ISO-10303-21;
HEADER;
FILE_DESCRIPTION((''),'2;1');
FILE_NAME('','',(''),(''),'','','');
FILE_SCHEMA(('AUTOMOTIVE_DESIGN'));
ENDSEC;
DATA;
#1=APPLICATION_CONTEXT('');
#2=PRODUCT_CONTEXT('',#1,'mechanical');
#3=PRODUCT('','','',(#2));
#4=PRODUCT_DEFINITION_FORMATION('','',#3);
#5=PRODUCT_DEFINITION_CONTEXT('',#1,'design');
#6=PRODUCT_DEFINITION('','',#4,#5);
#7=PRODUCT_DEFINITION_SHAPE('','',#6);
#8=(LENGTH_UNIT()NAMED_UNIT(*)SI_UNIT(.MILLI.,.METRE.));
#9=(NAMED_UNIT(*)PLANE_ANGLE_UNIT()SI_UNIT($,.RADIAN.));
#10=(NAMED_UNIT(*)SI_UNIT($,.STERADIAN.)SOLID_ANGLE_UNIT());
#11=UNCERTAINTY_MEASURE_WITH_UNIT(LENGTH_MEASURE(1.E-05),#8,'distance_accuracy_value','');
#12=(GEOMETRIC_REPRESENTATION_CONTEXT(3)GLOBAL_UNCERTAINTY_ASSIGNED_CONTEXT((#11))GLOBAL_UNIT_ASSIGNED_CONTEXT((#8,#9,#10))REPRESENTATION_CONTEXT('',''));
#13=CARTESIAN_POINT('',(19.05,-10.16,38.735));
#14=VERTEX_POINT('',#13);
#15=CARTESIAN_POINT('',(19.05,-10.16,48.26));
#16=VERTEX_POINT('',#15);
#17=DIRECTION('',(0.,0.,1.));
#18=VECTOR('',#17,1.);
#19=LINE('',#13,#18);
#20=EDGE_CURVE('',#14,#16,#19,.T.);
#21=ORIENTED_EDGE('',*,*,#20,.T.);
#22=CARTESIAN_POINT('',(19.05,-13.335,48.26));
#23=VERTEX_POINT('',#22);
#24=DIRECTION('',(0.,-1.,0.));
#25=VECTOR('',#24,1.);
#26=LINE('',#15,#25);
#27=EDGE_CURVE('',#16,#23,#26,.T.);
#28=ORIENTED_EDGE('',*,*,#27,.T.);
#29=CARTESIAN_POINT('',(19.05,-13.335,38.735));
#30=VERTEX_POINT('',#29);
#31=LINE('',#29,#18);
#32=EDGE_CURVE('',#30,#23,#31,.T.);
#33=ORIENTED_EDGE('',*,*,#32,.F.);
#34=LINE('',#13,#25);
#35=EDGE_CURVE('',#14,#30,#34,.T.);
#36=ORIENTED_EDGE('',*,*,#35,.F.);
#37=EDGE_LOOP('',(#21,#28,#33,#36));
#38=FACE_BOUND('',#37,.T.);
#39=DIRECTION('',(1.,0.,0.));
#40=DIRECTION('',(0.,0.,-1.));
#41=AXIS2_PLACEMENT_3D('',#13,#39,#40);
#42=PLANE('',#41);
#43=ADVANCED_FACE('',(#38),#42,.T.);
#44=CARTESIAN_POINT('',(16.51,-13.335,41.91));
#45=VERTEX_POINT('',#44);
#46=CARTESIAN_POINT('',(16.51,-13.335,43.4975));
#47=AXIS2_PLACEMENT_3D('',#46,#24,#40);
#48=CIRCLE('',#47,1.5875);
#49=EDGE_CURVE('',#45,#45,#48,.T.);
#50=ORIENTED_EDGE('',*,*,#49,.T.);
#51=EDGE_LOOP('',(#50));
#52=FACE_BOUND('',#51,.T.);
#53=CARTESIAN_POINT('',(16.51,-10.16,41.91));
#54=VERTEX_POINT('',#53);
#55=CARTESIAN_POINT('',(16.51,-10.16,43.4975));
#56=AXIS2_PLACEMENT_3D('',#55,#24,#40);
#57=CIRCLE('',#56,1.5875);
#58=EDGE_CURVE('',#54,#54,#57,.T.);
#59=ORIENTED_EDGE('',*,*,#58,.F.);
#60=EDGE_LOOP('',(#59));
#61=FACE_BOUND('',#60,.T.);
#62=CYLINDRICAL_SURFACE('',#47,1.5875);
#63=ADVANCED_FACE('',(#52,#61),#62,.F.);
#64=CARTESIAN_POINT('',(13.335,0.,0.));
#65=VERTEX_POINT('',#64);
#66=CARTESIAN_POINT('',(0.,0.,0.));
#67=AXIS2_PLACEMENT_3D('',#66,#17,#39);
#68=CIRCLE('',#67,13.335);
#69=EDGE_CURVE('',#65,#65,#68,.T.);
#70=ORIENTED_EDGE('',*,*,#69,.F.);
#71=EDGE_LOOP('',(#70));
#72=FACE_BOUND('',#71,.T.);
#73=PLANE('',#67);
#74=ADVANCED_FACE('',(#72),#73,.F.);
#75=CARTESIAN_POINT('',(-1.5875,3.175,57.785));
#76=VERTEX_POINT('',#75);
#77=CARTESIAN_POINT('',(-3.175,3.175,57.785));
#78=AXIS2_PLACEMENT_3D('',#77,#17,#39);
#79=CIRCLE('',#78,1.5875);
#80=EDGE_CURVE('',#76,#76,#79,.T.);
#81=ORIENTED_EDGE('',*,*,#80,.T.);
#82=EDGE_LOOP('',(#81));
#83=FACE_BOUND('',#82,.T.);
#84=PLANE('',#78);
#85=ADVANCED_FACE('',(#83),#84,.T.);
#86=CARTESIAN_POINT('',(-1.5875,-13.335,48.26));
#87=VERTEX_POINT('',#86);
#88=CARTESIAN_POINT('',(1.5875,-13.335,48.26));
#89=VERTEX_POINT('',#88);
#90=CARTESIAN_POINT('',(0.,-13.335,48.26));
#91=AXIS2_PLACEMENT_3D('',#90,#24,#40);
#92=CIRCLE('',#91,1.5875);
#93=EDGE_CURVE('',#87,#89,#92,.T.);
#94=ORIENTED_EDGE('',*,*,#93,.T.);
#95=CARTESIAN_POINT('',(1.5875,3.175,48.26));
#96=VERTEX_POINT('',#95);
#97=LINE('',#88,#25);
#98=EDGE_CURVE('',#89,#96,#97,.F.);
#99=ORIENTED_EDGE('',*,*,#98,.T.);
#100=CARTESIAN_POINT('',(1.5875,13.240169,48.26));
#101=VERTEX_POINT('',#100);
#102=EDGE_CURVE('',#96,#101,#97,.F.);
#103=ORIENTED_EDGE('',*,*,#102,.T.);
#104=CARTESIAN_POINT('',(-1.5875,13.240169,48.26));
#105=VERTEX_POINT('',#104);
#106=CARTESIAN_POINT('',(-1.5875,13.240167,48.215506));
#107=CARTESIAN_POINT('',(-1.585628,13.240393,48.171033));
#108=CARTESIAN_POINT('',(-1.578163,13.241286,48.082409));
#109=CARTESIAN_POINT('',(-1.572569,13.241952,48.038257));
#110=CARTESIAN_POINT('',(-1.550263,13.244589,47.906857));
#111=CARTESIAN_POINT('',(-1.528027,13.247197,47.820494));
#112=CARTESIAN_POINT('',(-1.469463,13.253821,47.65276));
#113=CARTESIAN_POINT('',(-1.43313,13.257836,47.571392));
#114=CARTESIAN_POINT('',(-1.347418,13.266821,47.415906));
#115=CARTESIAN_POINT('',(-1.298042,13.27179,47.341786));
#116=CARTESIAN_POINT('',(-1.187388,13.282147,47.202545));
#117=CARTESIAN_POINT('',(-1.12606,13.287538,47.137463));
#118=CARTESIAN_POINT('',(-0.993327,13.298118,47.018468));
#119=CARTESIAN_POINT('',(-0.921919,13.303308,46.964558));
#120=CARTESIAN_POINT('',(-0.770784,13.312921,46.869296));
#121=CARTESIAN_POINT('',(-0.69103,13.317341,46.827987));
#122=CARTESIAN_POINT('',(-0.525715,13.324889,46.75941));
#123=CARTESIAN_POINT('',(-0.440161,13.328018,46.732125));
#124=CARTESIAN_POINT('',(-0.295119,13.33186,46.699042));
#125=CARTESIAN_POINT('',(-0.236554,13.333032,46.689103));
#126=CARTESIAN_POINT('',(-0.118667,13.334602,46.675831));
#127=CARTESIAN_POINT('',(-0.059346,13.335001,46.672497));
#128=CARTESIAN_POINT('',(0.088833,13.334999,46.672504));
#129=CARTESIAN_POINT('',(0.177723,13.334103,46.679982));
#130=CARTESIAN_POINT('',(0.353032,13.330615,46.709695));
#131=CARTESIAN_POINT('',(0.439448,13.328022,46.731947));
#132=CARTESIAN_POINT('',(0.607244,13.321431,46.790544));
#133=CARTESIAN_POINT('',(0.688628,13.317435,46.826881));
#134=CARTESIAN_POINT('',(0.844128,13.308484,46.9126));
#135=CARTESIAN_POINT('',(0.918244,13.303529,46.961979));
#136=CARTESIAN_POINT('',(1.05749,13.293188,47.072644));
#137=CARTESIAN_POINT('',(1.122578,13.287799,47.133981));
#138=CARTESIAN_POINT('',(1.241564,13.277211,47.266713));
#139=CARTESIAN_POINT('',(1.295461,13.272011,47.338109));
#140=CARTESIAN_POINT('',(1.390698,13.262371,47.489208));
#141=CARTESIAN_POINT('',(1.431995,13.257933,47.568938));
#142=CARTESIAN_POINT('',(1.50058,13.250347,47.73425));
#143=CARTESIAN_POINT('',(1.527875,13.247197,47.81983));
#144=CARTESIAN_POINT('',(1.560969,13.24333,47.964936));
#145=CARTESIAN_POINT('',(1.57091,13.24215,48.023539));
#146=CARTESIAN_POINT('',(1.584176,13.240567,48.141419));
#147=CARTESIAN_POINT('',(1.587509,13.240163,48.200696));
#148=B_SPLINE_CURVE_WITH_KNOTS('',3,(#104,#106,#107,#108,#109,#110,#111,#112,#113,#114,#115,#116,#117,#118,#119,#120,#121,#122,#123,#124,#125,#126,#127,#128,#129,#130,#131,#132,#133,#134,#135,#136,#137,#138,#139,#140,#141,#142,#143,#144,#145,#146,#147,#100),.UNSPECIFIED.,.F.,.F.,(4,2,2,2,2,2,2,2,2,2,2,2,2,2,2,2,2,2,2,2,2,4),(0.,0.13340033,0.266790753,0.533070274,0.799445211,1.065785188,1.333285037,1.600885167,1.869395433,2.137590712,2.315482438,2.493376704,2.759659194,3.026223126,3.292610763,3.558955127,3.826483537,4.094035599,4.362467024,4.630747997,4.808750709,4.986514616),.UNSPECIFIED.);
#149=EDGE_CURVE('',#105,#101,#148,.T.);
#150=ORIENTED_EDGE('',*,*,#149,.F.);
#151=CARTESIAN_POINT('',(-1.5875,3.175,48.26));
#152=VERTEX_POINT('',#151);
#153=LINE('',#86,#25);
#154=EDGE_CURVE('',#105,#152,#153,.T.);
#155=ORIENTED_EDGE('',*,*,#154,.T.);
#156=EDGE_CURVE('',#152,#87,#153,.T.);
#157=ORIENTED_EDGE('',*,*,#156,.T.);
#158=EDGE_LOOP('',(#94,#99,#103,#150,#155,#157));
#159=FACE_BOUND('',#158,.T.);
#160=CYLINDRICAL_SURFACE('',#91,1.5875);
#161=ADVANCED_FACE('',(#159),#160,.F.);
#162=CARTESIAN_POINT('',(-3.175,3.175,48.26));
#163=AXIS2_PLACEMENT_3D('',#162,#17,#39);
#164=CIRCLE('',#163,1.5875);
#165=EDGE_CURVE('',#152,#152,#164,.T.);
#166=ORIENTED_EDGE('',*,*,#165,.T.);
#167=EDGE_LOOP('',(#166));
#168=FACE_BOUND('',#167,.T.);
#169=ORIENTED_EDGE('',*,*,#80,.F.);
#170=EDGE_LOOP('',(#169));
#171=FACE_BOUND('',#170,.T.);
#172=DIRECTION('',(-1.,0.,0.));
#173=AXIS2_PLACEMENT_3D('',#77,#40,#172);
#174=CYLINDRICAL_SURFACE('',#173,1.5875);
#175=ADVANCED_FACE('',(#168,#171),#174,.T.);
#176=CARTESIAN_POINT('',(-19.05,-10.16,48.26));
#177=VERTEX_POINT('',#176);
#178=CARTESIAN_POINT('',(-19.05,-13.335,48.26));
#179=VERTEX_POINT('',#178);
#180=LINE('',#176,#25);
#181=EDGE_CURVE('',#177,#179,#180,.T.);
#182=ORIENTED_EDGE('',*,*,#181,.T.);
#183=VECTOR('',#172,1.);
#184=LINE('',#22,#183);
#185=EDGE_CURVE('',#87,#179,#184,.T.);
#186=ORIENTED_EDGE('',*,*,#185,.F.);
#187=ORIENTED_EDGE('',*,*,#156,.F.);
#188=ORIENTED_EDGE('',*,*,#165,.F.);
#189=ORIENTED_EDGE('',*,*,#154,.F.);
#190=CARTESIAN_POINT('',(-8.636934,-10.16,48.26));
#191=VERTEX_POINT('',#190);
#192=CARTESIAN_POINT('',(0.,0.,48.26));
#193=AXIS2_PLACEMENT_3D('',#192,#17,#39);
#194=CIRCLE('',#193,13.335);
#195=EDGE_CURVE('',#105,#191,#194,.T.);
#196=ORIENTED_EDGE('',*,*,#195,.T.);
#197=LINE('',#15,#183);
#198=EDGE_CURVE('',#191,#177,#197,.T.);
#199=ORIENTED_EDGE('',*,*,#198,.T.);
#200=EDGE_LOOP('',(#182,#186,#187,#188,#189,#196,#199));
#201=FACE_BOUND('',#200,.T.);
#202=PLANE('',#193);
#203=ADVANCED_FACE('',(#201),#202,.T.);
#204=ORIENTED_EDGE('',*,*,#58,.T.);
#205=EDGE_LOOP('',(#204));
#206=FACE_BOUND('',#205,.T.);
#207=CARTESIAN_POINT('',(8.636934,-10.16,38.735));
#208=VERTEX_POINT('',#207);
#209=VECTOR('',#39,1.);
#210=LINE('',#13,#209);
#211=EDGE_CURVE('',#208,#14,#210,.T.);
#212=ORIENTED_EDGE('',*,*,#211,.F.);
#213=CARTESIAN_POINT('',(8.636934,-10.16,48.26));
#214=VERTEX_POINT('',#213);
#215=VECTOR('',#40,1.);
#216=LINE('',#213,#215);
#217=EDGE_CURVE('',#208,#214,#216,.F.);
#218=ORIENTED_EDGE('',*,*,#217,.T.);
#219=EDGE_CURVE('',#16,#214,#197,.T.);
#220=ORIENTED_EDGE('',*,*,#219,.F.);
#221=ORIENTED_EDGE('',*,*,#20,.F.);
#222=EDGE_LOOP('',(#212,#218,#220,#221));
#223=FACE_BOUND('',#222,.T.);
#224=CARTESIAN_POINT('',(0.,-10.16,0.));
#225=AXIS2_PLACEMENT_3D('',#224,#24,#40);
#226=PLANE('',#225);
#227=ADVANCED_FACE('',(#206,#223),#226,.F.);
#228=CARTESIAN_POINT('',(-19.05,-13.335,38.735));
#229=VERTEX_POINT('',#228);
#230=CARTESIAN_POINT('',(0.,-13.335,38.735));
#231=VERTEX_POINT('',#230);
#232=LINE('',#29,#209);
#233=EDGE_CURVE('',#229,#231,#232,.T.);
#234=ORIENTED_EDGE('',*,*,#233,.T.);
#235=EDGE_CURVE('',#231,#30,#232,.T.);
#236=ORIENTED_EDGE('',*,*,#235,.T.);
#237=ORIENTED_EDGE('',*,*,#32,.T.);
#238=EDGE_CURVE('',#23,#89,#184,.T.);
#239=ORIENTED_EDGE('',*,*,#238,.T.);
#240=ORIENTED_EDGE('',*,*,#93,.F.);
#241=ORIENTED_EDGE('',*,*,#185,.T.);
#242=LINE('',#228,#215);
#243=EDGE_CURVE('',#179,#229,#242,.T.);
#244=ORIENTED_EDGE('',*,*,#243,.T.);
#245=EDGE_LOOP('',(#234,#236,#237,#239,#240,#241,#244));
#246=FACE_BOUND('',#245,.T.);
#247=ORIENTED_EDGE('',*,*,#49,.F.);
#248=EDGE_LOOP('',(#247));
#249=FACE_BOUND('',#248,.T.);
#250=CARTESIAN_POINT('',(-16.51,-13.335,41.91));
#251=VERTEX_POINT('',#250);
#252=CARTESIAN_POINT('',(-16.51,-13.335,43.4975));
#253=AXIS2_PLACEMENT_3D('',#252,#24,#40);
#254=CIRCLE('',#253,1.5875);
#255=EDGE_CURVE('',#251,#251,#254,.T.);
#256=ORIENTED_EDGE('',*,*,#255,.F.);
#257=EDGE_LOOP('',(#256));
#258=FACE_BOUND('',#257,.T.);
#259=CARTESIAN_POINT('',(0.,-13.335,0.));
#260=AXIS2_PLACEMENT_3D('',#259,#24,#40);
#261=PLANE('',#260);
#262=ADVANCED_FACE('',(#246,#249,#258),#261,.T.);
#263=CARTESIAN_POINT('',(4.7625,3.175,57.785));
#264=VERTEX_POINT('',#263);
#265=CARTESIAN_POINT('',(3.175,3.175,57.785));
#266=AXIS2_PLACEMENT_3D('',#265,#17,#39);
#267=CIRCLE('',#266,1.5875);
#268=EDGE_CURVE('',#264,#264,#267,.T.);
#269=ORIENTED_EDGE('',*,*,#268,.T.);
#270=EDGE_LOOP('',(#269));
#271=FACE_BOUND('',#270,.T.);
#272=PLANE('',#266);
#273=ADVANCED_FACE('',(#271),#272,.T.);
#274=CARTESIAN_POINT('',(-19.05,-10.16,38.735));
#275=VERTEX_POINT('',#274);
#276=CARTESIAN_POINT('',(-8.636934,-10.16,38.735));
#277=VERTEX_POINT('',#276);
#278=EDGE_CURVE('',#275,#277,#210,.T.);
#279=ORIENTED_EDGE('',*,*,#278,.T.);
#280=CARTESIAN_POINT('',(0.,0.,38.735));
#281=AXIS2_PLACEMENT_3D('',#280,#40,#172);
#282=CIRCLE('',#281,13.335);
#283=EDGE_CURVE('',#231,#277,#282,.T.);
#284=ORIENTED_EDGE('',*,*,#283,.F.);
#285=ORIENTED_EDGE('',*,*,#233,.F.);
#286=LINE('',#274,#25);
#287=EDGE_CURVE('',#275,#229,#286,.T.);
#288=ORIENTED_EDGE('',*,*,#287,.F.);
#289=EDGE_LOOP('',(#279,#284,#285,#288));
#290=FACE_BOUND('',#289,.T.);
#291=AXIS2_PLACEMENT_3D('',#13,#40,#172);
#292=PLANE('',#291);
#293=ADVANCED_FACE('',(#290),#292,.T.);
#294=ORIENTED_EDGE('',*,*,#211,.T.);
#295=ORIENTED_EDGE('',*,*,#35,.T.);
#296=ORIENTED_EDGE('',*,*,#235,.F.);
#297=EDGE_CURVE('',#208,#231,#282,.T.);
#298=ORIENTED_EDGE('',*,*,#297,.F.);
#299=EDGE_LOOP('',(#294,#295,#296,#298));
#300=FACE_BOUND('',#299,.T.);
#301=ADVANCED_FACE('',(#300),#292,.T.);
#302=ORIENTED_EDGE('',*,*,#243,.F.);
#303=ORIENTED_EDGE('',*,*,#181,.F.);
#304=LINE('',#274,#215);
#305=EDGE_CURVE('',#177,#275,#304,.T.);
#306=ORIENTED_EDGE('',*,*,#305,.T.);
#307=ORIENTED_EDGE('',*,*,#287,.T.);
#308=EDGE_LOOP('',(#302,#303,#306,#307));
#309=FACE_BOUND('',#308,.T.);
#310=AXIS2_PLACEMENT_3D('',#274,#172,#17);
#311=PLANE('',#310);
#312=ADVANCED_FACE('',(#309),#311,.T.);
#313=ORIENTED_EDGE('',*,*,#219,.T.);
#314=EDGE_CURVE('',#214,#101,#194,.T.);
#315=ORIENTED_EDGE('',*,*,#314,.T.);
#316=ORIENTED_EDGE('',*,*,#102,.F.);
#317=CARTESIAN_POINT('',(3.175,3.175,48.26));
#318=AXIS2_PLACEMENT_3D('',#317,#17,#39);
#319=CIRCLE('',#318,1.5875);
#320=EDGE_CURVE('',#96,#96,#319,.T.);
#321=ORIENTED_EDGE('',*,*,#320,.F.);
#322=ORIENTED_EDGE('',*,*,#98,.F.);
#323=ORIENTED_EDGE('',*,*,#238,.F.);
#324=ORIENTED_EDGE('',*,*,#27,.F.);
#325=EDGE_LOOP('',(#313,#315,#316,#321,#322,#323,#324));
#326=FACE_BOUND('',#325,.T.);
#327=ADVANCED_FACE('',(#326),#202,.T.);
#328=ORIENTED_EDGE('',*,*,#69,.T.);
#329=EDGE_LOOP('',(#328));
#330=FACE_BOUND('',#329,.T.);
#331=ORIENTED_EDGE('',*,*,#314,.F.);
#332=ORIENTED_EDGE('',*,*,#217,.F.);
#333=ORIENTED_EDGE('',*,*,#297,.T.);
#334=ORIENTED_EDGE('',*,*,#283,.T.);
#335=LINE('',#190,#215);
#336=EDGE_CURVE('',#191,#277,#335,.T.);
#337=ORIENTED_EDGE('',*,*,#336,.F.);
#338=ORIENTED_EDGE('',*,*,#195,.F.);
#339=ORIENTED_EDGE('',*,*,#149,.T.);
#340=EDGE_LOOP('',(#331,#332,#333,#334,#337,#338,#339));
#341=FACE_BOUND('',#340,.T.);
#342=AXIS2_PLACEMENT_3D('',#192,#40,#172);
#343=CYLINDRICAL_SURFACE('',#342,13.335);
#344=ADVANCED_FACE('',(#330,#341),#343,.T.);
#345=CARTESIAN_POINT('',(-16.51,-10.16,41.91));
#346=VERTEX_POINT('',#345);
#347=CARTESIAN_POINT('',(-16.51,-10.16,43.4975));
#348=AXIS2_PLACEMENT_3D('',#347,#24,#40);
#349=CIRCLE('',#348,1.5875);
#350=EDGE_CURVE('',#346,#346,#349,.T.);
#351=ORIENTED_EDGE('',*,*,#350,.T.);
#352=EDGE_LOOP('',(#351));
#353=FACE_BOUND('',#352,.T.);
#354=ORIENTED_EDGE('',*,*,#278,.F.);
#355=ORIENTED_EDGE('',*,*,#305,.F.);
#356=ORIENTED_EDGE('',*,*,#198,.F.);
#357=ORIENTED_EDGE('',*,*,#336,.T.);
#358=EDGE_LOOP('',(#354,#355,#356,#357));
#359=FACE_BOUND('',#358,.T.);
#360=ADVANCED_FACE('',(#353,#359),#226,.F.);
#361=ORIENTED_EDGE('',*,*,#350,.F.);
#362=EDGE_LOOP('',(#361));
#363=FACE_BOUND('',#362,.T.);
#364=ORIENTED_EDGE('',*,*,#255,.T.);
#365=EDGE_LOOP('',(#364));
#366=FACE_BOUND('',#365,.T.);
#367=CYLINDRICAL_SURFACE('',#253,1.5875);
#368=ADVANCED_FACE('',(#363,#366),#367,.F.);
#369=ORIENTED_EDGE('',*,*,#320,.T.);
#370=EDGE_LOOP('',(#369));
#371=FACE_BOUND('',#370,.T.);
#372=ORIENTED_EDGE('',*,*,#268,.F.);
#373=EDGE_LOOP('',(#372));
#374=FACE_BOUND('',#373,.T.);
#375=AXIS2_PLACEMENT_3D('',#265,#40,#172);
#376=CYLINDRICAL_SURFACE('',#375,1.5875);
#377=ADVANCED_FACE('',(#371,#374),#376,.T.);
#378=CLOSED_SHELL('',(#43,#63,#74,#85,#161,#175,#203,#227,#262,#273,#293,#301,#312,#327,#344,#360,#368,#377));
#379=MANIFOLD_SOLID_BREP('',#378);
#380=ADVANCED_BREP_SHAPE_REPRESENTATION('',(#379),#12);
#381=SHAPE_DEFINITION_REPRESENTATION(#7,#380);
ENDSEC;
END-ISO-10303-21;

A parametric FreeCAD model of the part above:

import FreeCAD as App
import Part
import Sketcher

V = App.Vector
Q = App.Units.Quantity


def add_polygon(sketch, points):
    """Adds a closed chain of lines whose ends are joined by coincident constraints."""
    first, n = sketch.GeometryCount, len(points)
    for a, b in zip(points, points[1:] + points[:1]):
        sketch.addGeometry(Part.LineSegment(App.Vector(*a, 0), App.Vector(*b, 0)), False)
    for i in range(n):
        sketch.addConstraint(Sketcher.Constraint("Coincident", first + i, 2, first + (i + 1) % n, 1))

doc = App.newDocument("Part")
body = doc.addObject("PartDesign::Body", "Body")

# Sketch on XY plane
sketch1 = body.newObject("Sketcher::SketchObject", "Sketch")
sketch1.AttachmentSupport = (doc.getObject("XY_Plane"), [""])
sketch1.MapMode = "FlatFace"
sketch1.addGeometry(Part.Circle(V(0, 0, 0), V(0, 0, 1), 13.335), False)
sketch1.addConstraint([
    Sketcher.Constraint("Coincident", 0, 3, -1, 1),
    Sketcher.Constraint("Diameter", 0, Q("1.05 in")),
])
pad1 = body.newObject("PartDesign::Pad", "Pad")
pad1.Profile = sketch1
pad1.Length = Q("1.9 in")

# Sketch on XZ plane
sketch2 = body.newObject("Sketcher::SketchObject", "Sketch001")
sketch2.AttachmentSupport = (doc.getObject("XZ_Plane"), [""])
sketch2.MapMode = "FlatFace"
sketch2.AttachmentOffset = App.Placement(V(0, 0, 0.525 * 25.4), App.Rotation())
add_polygon(sketch2, [(19.05, 38.735), (19.05, 48.26), (-19.05, 48.26), (-19.05, 38.735)])  # lines 0-3
sketch2.addConstraint([
    Sketcher.Constraint("Vertical", 0),
    Sketcher.Constraint("Horizontal", 1),
    Sketcher.Constraint("Vertical", 2),
    Sketcher.Constraint("Horizontal", 3),
    Sketcher.Constraint("DistanceX", 1, 2, 1, 1, Q("1.5 in")),
    Sketcher.Constraint("DistanceY", -1, 1, 0, 2, Q("1.9 in")),
    Sketcher.Constraint("DistanceY", 0, 1, 0, 2, Q("0.375 in")),
    Sketcher.Constraint("DistanceX", -1, 1, 0, 2, Q("0.75 in")),
])
pad2 = body.newObject("PartDesign::Pad", "Pad001")
pad2.Profile = sketch2
pad2.Length = Q("0.125 in")
pad2.Reversed = True

# Sketch on XZ plane
sketch3 = body.newObject("Sketcher::SketchObject", "Sketch002")
sketch3.AttachmentSupport = (doc.getObject("XZ_Plane"), [""])
sketch3.MapMode = "FlatFace"
sketch3.AttachmentOffset = App.Placement(V(0, 0, 0.525 * 25.4), App.Rotation())
sketch3.addGeometry([
    Part.Circle(V(16.51, 43.4975, 0), V(0, 0, 1), 1.5875),
    Part.Circle(V(-16.51, 43.4975, 0), V(0, 0, 1), 1.5875),
    Part.Circle(V(0, 48.26, 0), V(0, 0, 1), 1.5875),
], False)
sketch3.addConstraint([
    Sketcher.Constraint("Equal", 0, 1),
    Sketcher.Constraint("Equal", 1, 2),
    Sketcher.Constraint("Symmetric", 0, 3, 1, 3, -2),
    Sketcher.Constraint("PointOnObject", 2, 3, -2),
    Sketcher.Constraint("Diameter", 0, Q("0.125 in")),
    Sketcher.Constraint("DistanceY", -1, 1, 2, 3, Q("1.9 in")),
    Sketcher.Constraint("DistanceX", 1, 3, 0, 3, Q("1.3 in")),
    Sketcher.Constraint("DistanceY", 0, 3, 2, 3, Q("0.1875 in")),
])
doc.recompute()
hole = body.newObject("PartDesign::Hole", "Hole")
hole.Profile = sketch3
hole.ThreadType = "None"
hole.Diameter = Q("0.125 in")
hole.DepthType = "ThroughAll"

# Sketch on XY plane
sketch4 = body.newObject("Sketcher::SketchObject", "Sketch003")
sketch4.AttachmentSupport = (doc.getObject("XY_Plane"), [""])
sketch4.MapMode = "FlatFace"
sketch4.AttachmentOffset = App.Placement(V(0, 0, 1.9 * 25.4), App.Rotation())
sketch4.addGeometry([
    Part.Circle(V(-3.175, 3.175, 0), V(0, 0, 1), 1.5875),
    Part.Circle(V(3.175, 3.175, 0), V(0, 0, 1), 1.5875),
], False)
sketch4.addConstraint([
    Sketcher.Constraint("Equal", 0, 1),
    Sketcher.Constraint("Symmetric", 0, 3, 1, 3, -2),
    Sketcher.Constraint("Diameter", 0, Q("0.125 in")),
    Sketcher.Constraint("DistanceX", 0, 3, 1, 3, Q("0.25 in")),
    Sketcher.Constraint("DistanceY", -1, 1, 0, 3, Q("0.125 in")),
])
pad3 = body.newObject("PartDesign::Pad", "Pad002")
pad3.Profile = sketch4
pad3.Length = Q("0.375 in")

doc.recompute()
